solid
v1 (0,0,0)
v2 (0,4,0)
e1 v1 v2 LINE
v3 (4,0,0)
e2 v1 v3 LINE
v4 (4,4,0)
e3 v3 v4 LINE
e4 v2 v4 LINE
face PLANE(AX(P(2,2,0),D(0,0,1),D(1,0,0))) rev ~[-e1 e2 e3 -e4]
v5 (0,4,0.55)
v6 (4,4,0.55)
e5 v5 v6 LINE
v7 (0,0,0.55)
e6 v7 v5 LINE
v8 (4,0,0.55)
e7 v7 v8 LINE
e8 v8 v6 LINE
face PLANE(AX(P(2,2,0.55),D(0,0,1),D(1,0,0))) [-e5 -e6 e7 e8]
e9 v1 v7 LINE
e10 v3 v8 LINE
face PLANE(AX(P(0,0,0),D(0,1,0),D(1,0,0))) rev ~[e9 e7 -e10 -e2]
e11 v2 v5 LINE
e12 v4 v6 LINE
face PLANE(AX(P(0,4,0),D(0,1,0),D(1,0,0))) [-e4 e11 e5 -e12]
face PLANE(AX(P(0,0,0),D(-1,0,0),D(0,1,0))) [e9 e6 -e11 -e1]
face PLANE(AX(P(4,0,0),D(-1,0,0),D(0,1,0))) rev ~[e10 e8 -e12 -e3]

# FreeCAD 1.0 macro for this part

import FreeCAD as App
import Part
import Sketcher
Q = App.Units.Quantity

doc = App.newDocument("Part")
body = doc.addObject("PartDesign::Body", "Body")

# Sketch on XY plane
sketch1 = body.newObject("Sketcher::SketchObject", "Sketch")
sketch1.AttachmentSupport = (doc.getObject("XY_Plane"), [""])
sketch1.MapMode = "FlatFace"
sketch1.addGeometry(Part.LineSegment(App.Vector(0, 4, 0), App.Vector(0, 0, 0)), False)
sketch1.addGeometry(Part.LineSegment(App.Vector(0, 0, 0), App.Vector(4, 0, 0)), False)
sketch1.addGeometry(Part.LineSegment(App.Vector(4, 0, 0), App.Vector(4, 4, 0)), False)
sketch1.addGeometry(Part.LineSegment(App.Vector(4, 4, 0), App.Vector(0, 4, 0)), False)
sketch1.addConstraint(Sketcher.Constraint("Coincident", 0, 2, 1, 1))
sketch1.addConstraint(Sketcher.Constraint("Coincident", 1, 2, 2, 1))
sketch1.addConstraint(Sketcher.Constraint("Coincident", 2, 2, 3, 1))
sketch1.addConstraint(Sketcher.Constraint("Coincident", 3, 2, 0, 1))
sketch1.addConstraint(Sketcher.Constraint("Vertical", 0))
sketch1.addConstraint(Sketcher.Constraint("Horizontal", 1))
sketch1.addConstraint(Sketcher.Constraint("Vertical", 2))
sketch1.addConstraint(Sketcher.Constraint("Horizontal", 3))
sketch1.addConstraint(Sketcher.Constraint("Coincident", 0, 2, -1, 1))
sketch1.addConstraint(Sketcher.Constraint("Equal", 3, 0))
sketch1.addConstraint(Sketcher.Constraint("DistanceX", 1, 1, 1, 2, Q("4 mm")))
pad1 = body.newObject("PartDesign::Pad", "Pad")
pad1.Profile = sketch1
pad1.Length = 0.55

doc.recompute()
